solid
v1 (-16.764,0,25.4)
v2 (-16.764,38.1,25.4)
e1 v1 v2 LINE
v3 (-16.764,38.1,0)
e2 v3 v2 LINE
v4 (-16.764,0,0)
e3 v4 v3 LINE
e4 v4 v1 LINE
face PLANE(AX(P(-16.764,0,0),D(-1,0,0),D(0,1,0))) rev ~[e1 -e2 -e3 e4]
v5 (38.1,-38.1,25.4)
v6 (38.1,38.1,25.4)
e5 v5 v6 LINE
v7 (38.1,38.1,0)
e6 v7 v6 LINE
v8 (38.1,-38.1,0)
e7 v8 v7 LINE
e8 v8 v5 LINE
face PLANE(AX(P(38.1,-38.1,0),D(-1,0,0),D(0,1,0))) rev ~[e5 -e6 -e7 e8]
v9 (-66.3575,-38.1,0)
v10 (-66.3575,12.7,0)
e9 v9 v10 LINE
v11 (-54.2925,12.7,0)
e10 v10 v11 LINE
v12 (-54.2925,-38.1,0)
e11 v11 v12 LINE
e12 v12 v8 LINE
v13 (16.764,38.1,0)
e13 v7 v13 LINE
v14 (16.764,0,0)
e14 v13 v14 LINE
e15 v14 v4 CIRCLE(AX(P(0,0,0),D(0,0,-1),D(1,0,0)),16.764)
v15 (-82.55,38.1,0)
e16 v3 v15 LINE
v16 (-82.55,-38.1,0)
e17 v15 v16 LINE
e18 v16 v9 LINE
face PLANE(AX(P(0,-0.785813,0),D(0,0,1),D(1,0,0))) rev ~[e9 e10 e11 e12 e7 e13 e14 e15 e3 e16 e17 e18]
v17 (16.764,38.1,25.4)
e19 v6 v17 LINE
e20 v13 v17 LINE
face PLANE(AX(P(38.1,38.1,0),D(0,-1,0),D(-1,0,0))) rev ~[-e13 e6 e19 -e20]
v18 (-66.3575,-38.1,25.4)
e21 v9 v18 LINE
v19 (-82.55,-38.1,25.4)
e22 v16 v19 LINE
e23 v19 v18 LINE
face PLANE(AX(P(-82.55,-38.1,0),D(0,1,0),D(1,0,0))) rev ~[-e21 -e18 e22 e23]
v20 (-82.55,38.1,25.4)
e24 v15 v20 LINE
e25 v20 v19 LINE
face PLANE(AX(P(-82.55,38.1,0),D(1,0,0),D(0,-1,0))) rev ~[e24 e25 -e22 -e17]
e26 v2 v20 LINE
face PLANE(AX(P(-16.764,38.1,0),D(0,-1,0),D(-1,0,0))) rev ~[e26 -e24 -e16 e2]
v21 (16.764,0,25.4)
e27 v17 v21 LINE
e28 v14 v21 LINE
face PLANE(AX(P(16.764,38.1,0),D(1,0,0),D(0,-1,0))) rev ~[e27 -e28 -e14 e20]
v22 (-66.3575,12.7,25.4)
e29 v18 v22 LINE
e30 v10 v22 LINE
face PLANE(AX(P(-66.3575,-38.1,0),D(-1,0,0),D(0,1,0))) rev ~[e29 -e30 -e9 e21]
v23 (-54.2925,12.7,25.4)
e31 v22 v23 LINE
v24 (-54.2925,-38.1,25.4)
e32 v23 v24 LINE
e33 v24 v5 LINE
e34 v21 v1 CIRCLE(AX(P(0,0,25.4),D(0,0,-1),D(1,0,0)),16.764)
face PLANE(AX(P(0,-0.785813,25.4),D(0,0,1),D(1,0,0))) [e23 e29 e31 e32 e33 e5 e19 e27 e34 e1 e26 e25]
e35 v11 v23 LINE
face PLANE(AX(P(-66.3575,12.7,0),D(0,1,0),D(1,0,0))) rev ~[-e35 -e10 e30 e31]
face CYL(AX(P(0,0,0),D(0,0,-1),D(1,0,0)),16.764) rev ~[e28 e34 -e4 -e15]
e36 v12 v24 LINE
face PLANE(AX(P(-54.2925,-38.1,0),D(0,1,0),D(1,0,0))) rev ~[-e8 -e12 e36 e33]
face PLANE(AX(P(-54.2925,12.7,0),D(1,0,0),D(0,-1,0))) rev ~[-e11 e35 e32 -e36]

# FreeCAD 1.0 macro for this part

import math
import FreeCAD as App
import Part
import Sketcher
from FreeCAD import Vector
Q = App.Units.Quantity

doc = App.newDocument("Part")
body = doc.addObject("PartDesign::Body", "Body")

sketch1 = body.newObject("Sketcher::SketchObject", "Sketch")
sketch1.AttachmentSupport = (doc.getObject("XY_Plane"), [""])
sketch1.MapMode = "FlatFace"
sketch1.addGeometry([
    Part.LineSegment(Vector(38, -38, 0), Vector(38, 38, 0)),
    Part.LineSegment(Vector(38, 38, 0), Vector(17, 38, 0)),
    Part.LineSegment(Vector(17, 38, 0), Vector(17, 0, 0)),
    Part.ArcOfCircle(Part.Circle(Vector(0, 0, 0), Vector(0, 0, 1), 17), math.radians(180), math.radians(360)),
    Part.LineSegment(Vector(-17, 0, 0), Vector(-17, 38, 0)),
    Part.LineSegment(Vector(-17, 38, 0), Vector(-83, 38, 0)),
    Part.LineSegment(Vector(-83, 38, 0), Vector(-83, -38, 0)),
    Part.LineSegment(Vector(-83, -38, 0), Vector(-66, -38, 0)),
    Part.LineSegment(Vector(-66, -38, 0), Vector(-66, 13, 0)),
    Part.LineSegment(Vector(-66, 13, 0), Vector(-54, 13, 0)),
    Part.LineSegment(Vector(-54, 13, 0), Vector(-54, -38, 0)),
    Part.LineSegment(Vector(-54, -38, 0), Vector(38, -38, 0)),
], False)
sketch1.addConstraint([
    Sketcher.Constraint("Coincident", 0, 2, 1, 1),
    Sketcher.Constraint("Coincident", 1, 2, 2, 1),
    Sketcher.Constraint("Tangent", 2, 2, 3, 2),
    Sketcher.Constraint("Tangent", 3, 1, 4, 1),
    Sketcher.Constraint("Coincident", 4, 2, 5, 1),
    Sketcher.Constraint("Coincident", 5, 2, 6, 1),
    Sketcher.Constraint("Coincident", 6, 2, 7, 1),
    Sketcher.Constraint("Coincident", 7, 2, 8, 1),
    Sketcher.Constraint("Coincident", 8, 2, 9, 1),
    Sketcher.Constraint("Coincident", 9, 2, 10, 1),
    Sketcher.Constraint("Coincident", 10, 2, 11, 1),
    Sketcher.Constraint("Coincident", 11, 2, 0, 1),
    Sketcher.Constraint("Vertical", 0),
    Sketcher.Constraint("Horizontal", 1),
    Sketcher.Constraint("Vertical", 2),
    Sketcher.Constraint("Vertical", 4),
    Sketcher.Constraint("Horizontal", 5),
    Sketcher.Constraint("Vertical", 6),
    Sketcher.Constraint("Horizontal", 7),
    Sketcher.Constraint("Vertical", 8),
    Sketcher.Constraint("Horizontal", 9),
    Sketcher.Constraint("Vertical", 10),
    Sketcher.Constraint("Horizontal", 11),
    Sketcher.Constraint("Coincident", 3, 3, -1, 1),
    Sketcher.Constraint("Horizontal", 1, 2, 4, 2),
    Sketcher.Constraint("Horizontal", 7, 2, 10, 2),
    Sketcher.Constraint("DistanceY", 0, 1, 0, 2, Q("3 in")),
    Sketcher.Constraint("DistanceY", 8, 1, 8, 2, Q("2 in")),
    Sketcher.Constraint("Radius", 3, Q("0.66 in")),
    Sketcher.Constraint("DistanceY", 2, 2, 2, 1, Q("1.5 in")),
    Sketcher.Constraint("DistanceX", 1, 2, 1, 1, Q("0.84 in")),
    Sketcher.Constraint("DistanceX", 5, 2, 5, 1, Q("2.59 in")),
    Sketcher.Constraint("DistanceX", 9, 1, 9, 2, Q("0.475 in")),
    Sketcher.Constraint("DistanceX", 7, 1, 7, 2, Q("0.6375 in")),
])
pad1 = body.newObject("PartDesign::Pad", "Pad")
pad1.Profile = sketch1
pad1.Length = Q("1 in")

doc.recompute()
